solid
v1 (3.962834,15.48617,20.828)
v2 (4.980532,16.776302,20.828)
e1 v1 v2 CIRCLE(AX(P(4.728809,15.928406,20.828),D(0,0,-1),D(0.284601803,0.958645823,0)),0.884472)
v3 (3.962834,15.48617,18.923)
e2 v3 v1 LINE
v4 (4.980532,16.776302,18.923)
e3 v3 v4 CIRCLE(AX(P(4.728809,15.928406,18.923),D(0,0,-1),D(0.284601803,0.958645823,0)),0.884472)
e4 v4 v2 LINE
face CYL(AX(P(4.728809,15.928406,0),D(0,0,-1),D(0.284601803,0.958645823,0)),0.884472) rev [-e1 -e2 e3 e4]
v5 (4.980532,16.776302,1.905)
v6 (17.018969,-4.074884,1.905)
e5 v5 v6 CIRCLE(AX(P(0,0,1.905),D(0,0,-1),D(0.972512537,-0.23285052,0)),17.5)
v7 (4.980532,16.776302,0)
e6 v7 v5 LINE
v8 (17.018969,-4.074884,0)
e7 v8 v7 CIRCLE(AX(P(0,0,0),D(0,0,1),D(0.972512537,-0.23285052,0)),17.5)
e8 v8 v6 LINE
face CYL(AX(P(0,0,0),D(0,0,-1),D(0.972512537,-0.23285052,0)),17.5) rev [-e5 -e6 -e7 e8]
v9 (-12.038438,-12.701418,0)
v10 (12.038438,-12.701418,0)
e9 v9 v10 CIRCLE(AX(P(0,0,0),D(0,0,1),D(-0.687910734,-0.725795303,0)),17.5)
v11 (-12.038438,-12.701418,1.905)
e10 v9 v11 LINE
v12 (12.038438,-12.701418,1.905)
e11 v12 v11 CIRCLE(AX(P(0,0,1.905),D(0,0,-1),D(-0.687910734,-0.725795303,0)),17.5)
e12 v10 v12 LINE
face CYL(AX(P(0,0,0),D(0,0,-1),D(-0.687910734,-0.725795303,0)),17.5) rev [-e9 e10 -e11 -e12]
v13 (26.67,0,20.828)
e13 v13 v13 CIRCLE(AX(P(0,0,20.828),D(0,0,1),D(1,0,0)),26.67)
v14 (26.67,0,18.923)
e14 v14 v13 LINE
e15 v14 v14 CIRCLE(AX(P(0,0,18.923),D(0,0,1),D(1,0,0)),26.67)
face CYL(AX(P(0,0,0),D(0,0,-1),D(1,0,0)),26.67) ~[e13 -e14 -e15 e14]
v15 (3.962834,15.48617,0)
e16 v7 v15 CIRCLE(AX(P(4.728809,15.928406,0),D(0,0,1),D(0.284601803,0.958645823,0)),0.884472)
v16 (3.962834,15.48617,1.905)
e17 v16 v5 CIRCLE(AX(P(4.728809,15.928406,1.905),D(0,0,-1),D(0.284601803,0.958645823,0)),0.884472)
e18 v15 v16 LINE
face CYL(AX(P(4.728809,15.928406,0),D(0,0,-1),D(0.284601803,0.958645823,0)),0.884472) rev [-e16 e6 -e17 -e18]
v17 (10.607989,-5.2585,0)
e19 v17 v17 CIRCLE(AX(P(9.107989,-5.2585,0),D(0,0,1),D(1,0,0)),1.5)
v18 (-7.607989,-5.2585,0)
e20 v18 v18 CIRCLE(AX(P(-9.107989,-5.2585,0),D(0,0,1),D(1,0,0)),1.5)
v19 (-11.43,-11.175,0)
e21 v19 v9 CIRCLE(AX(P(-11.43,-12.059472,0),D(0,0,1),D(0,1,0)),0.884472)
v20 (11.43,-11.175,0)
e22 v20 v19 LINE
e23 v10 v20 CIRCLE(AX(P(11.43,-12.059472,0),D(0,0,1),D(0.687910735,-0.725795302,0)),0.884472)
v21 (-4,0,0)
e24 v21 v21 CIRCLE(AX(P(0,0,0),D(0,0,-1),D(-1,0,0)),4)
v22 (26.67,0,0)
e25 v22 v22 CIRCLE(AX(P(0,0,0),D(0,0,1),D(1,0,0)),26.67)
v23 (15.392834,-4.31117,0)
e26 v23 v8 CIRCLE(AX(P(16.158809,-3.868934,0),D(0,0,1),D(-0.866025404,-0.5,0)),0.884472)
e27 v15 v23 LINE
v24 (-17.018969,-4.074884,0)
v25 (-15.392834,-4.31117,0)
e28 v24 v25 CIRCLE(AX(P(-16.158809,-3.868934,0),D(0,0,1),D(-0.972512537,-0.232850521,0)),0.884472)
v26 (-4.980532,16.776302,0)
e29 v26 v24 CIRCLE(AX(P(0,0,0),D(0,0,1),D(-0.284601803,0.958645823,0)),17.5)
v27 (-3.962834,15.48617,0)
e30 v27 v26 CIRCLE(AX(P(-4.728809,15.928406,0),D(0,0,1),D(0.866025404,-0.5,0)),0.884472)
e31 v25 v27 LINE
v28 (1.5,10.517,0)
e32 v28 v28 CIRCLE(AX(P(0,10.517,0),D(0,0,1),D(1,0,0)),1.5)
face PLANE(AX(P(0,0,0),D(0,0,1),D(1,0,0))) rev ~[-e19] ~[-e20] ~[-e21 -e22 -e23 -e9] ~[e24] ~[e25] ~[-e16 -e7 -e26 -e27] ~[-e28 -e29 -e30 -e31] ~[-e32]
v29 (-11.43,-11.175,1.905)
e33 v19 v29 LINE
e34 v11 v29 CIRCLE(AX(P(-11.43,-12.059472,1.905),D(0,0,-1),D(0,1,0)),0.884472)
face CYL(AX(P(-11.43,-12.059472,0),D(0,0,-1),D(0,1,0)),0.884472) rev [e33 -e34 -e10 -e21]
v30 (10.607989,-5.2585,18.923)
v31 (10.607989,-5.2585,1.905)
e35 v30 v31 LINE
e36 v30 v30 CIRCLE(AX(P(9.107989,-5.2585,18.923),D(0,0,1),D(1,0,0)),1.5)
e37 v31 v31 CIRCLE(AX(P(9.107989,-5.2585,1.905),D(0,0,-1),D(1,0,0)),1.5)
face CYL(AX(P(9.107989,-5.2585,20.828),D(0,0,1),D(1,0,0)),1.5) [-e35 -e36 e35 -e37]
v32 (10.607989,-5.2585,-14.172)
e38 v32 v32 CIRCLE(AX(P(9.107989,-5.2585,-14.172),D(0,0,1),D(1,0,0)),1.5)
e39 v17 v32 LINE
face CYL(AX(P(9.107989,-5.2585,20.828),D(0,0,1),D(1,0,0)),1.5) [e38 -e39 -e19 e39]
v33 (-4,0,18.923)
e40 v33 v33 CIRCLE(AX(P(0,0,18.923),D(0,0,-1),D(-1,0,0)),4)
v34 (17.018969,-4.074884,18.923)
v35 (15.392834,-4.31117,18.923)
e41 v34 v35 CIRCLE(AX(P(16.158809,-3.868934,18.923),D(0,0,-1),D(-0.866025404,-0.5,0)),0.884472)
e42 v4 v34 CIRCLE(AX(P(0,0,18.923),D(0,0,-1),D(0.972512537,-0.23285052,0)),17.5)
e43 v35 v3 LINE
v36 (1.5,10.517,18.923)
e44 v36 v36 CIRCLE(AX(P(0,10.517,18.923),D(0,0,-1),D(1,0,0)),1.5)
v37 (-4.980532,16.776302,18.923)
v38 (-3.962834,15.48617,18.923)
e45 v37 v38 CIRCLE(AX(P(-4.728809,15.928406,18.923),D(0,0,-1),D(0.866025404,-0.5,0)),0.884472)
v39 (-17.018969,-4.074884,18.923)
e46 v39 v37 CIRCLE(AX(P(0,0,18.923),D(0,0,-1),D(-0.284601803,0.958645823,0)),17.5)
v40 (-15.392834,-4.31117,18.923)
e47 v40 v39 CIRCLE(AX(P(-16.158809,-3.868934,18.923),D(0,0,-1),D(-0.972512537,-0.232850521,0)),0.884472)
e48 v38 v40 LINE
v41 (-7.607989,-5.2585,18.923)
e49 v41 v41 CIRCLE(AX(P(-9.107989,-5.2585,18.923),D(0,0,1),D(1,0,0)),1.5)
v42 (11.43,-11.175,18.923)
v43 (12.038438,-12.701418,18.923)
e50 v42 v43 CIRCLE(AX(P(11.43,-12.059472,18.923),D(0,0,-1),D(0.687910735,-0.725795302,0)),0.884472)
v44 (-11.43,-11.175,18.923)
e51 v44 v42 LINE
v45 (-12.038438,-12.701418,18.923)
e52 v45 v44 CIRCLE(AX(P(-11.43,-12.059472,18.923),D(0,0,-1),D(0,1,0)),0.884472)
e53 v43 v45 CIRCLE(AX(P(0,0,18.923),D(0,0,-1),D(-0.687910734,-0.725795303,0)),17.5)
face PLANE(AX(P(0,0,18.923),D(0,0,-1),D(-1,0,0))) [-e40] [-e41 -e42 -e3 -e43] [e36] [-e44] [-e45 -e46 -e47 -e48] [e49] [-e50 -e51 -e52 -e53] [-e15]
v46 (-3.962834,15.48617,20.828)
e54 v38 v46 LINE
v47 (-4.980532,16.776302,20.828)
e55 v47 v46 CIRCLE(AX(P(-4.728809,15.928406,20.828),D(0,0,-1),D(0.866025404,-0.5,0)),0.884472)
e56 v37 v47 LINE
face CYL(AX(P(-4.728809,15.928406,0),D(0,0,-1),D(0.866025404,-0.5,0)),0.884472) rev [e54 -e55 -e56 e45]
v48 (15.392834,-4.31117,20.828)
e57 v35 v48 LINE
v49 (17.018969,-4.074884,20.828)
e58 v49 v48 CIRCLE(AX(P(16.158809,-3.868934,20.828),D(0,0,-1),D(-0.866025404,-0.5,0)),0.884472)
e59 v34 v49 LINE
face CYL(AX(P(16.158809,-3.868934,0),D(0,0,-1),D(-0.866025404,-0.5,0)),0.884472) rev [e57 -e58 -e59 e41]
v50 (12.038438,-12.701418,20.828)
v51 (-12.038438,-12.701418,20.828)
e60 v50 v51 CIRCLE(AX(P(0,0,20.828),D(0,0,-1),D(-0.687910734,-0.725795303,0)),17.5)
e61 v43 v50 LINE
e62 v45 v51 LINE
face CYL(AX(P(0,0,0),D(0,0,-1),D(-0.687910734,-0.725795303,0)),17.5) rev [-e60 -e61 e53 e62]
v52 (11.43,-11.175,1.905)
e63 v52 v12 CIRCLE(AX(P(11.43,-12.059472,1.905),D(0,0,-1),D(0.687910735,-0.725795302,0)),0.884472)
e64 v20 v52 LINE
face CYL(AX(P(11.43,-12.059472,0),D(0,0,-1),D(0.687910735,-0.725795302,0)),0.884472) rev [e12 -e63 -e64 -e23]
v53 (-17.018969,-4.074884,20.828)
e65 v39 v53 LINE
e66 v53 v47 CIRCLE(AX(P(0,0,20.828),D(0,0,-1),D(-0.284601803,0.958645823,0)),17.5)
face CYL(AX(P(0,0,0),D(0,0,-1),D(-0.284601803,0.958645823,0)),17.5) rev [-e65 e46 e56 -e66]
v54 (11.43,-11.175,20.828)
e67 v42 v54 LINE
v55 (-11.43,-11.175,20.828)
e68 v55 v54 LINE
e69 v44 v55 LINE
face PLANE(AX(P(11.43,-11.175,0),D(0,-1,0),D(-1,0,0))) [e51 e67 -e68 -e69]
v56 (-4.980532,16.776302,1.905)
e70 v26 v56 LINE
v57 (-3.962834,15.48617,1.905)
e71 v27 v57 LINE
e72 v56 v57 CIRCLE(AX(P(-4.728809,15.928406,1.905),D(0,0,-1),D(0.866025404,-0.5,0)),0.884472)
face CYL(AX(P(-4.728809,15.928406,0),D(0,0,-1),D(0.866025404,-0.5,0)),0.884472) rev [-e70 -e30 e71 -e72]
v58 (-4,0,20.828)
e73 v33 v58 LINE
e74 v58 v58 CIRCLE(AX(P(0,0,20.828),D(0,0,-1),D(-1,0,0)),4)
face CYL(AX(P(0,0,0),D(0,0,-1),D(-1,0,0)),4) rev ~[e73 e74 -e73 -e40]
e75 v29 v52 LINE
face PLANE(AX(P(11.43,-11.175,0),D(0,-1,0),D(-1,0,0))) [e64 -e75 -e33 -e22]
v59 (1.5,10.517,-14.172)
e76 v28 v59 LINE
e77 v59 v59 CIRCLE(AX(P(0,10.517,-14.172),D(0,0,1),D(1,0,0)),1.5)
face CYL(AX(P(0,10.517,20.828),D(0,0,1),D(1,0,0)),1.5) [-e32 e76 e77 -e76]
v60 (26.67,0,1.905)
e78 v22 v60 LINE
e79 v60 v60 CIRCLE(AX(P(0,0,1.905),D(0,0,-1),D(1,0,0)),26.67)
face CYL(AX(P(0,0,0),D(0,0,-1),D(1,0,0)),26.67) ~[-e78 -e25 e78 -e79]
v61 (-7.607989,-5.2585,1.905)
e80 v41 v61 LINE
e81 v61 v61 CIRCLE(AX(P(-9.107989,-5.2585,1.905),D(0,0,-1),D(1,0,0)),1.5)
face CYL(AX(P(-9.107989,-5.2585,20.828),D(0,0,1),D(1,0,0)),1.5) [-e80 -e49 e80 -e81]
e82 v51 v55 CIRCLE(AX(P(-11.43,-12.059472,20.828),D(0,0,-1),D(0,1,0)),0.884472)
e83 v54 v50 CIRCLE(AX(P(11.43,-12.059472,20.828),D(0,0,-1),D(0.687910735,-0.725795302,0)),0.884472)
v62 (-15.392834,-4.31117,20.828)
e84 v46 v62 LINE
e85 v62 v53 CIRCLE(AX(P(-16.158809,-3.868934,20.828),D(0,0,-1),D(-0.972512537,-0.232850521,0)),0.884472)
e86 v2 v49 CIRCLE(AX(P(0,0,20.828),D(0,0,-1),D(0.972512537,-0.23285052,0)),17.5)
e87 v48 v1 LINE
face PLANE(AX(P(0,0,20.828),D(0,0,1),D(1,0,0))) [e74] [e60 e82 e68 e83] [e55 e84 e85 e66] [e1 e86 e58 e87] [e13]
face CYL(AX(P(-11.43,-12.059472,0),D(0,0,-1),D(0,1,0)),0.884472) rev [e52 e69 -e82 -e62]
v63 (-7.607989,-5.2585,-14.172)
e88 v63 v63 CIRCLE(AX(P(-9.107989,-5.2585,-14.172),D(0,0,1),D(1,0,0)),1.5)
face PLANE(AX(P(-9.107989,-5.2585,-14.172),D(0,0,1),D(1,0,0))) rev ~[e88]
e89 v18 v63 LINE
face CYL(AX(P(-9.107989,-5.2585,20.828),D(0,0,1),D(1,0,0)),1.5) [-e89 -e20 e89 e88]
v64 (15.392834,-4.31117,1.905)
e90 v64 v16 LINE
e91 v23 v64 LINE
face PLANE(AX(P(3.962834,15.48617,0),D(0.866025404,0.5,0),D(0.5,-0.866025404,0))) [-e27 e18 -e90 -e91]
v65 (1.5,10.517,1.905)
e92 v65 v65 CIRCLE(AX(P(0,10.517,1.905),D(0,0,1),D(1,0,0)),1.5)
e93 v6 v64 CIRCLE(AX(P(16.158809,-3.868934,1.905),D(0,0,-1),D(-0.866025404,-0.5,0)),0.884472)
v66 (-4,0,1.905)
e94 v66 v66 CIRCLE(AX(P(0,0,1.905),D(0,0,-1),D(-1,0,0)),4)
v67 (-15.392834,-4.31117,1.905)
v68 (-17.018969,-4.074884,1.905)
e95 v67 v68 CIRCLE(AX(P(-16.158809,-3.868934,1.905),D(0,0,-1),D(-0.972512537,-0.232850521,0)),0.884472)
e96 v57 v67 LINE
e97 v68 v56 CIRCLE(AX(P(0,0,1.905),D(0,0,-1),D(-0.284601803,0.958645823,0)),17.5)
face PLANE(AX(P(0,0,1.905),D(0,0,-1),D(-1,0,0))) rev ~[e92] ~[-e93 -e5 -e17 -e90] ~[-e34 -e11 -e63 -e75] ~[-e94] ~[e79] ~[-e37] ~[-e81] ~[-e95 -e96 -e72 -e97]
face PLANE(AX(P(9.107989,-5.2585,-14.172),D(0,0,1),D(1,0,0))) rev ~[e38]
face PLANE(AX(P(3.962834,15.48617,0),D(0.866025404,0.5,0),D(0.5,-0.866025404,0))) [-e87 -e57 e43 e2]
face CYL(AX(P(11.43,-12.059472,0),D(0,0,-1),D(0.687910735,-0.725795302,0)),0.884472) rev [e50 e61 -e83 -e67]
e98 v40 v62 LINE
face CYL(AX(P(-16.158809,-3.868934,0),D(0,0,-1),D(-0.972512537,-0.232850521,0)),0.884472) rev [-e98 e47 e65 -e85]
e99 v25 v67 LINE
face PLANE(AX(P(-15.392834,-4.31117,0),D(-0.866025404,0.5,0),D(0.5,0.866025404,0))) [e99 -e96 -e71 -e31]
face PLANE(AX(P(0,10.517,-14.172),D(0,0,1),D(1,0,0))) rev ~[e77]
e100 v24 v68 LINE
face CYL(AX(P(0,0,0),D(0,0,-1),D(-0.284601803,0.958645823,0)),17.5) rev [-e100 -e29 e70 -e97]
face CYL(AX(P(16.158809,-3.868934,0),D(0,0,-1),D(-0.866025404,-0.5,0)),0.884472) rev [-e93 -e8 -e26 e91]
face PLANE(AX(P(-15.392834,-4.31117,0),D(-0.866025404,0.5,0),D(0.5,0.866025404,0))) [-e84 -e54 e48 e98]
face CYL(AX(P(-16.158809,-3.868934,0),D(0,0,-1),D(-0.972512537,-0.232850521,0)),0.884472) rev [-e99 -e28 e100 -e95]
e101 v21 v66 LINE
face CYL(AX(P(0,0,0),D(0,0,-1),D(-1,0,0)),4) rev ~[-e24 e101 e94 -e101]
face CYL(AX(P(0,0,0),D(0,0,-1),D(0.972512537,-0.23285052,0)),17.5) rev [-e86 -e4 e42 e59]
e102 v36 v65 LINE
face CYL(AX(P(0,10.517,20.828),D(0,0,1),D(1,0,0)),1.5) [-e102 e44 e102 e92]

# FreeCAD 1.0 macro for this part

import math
import FreeCAD as App
import Part
import Sketcher

V = App.Vector
Q = App.Units.Quantity

doc = App.newDocument("Part")
params = doc.addObject("Spreadsheet::Sheet", "Params")
for row, (alias, value) in enumerate([
    ("sketch1_diameter", "2.1 in"),
    ("pad1_length", "0.82 in"),
    ("sketch2_width", "0.9 in"),
    ("sketch2_length", "0.9 in"),
    ("sketch3_diameter", "2.1 in"),
    ("pocket2_length", "0.67 in"),
    ("pad2_length", "35 mm"),
], start=1):
    params.set(f"A{row}", alias)
    params.set(f"B{row}", "=" + value)
    params.setAlias(f"B{row}", alias)

body = doc.addObject("PartDesign::Body", "Body")
body.AllowCompound = True

# Sketch on XY plane
sketch1 = body.newObject("Sketcher::SketchObject", "Sketch")
sketch1.AttachmentSupport = (doc.getObject("XY_Plane"), [""])
sketch1.MapMode = "FlatFace"
sketch1.addGeometry(Part.Circle(V(0, 0, 0), V(0, 0, 1), 27), False)
sketch1.addConstraint([
    Sketcher.Constraint("Coincident", 0, 3, -1, 1),
    Sketcher.Constraint("Diameter", 0, Q("2.1 in")),
])
sketch1.setExpression("Constraints[1]", "Params.sketch1_diameter")
pad1 = body.newObject("PartDesign::Pad", "Pad")
pad1.Profile = sketch1
pad1.setExpression("Length", "Params.pad1_length")

# Sketch on XY plane
sketch2 = body.newObject("Sketcher::SketchObject", "Sketch001")
sketch2.AttachmentSupport = (doc.getObject("XY_Plane"), [""])
sketch2.MapMode = "FlatFace"
sketch2.addGeometry([
    Part.Circle(V(0, 10.5, 0), V(0, 0, 1), 1.5),  # 0
    Part.Circle(V(-9.1, -5.3, 0), V(0, 0, 1), 1.5),  # 1
    Part.Circle(V(9.1, -5.3, 0), V(0, 0, 1), 1.5),  # 2
    Part.Circle(V(0, 0, 0), V(0, 0, 1), 4),  # 3
    Part.LineSegment(V(15.4, -4.3, 0), V(4, 15.5, 0)),  # 4
    Part.ArcOfCircle(Part.Circle(V(4.7, 15.9, 0), V(0, 0, 1), 0.9), math.radians(73), math.radians(210)),  # 5
    Part.ArcOfCircle(Part.Circle(V(0, 0, 0), V(0, 0, 1), 17.5), math.radians(-13), math.radians(73)),  # 6
    Part.ArcOfCircle(Part.Circle(V(16.2, -3.9, 0), V(0, 0, 1), 0.9), math.radians(-150), math.radians(-13)),  # 7
    Part.LineSegment(V(-4, 15.5, 0), V(-15.4, -4.3, 0)),  # 8
    Part.ArcOfCircle(Part.Circle(V(-16.2, -3.9, 0), V(0, 0, 1), 0.9), math.radians(-167), math.radians(-30)),  # 9
    Part.ArcOfCircle(Part.Circle(V(0, 0, 0), V(0, 0, 1), 17.5), math.radians(107), math.radians(193)),  # 10
    Part.ArcOfCircle(Part.Circle(V(-4.7, 15.9, 0), V(0, 0, 1), 0.9), math.radians(-30), math.radians(107)),  # 11
    Part.LineSegment(V(-11.4, -11.2, 0), V(11.4, -11.2, 0)),  # 12
    Part.ArcOfCircle(Part.Circle(V(11.4, -12.1, 0), V(0, 0, 1), 0.9), math.radians(-47), math.radians(90)),  # 13
    Part.ArcOfCircle(Part.Circle(V(0, 0, 0), V(0, 0, 1), 17.5), math.radians(-133), math.radians(-47)),  # 14
    Part.ArcOfCircle(Part.Circle(V(-11.4, -12.1, 0), V(0, 0, 1), 0.9), math.radians(90), math.radians(227)),  # 15
], False)
sketch2.addConstraint([
    Sketcher.Constraint("Tangent", 4, 2, 5, 2),
    Sketcher.Constraint("Tangent", 5, 1, 6, 2),
    Sketcher.Constraint("Tangent", 6, 1, 7, 2),
    Sketcher.Constraint("Tangent", 7, 1, 4, 1),
    Sketcher.Constraint("Tangent", 8, 2, 9, 2),
    Sketcher.Constraint("Tangent", 9, 1, 10, 2),
    Sketcher.Constraint("Tangent", 10, 1, 11, 2),
    Sketcher.Constraint("Tangent", 11, 1, 8, 1),
    Sketcher.Constraint("Tangent", 12, 2, 13, 2),
    Sketcher.Constraint("Tangent", 13, 1, 14, 2),
    Sketcher.Constraint("Tangent", 14, 1, 15, 2),
    Sketcher.Constraint("Tangent", 15, 1, 12, 1),
    Sketcher.Constraint("Horizontal", 12),
    Sketcher.Constraint("Coincident", 3, 3, -1, 1),
    Sketcher.Constraint("Coincident", 6, 3, -1, 1),
    Sketcher.Constraint("Coincident", 10, 3, -1, 1),
    Sketcher.Constraint("Coincident", 14, 3, -1, 1),
    Sketcher.Constraint("Equal", 0, 1),
    Sketcher.Constraint("Equal", 1, 2),
    Sketcher.Constraint("Equal", 5, 7),
    Sketcher.Constraint("Equal", 7, 9),
    Sketcher.Constraint("Equal", 6, 10),
    Sketcher.Constraint("Equal", 9, 11),
    Sketcher.Constraint("Equal", 11, 13),
    Sketcher.Constraint("Equal", 10, 14),
    Sketcher.Constraint("Equal", 13, 15),
    Sketcher.Constraint("Symmetric", 1, 3, 2, 3, -2),
    Sketcher.Constraint("Symmetric", 7, 1, 8, 2, -2),
    Sketcher.Constraint("PointOnObject", 0, 3, -2),
    Sketcher.Constraint("DistanceX", 12, 1, 12, 2, Q("0.9 in")),
    Sketcher.Constraint("Angle", 4, Q("120 deg")),
    Sketcher.Constraint("Distance", 4, Q("0.9 in")),
    Sketcher.Constraint("Diameter", 0, Q("3 mm")),
    Sketcher.Constraint("Diameter", 3, Q("8 mm")),
    Sketcher.Constraint("Radius", 6, Q("17.5 mm")),
    Sketcher.Constraint("Radius", 5, Q("0.884472 mm")),
    Sketcher.Constraint("DistanceY", -1, 1, 0, 3, Q("10.517 mm")),
    Sketcher.Constraint("DistanceY", 1, 3, -1, 1, Q("5.2585 mm")),
    Sketcher.Constraint("DistanceX", 1, 3, 5, 3, Q("13.836798 mm")),
])
sketch2.setExpression("Constraints[29]", "Params.sketch2_width")
sketch2.setExpression("Constraints[31]", "Params.sketch2_length")
pocket1 = body.newObject("PartDesign::Pocket", "Pocket")
pocket1.Profile = sketch2
pocket1.Type = "ThroughAll"
pocket1.Reversed = True

# Sketch on XY plane
sketch3 = body.newObject("Sketcher::SketchObject", "Sketch002")
sketch3.AttachmentSupport = (doc.getObject("XY_Plane"), [""])
sketch3.MapMode = "FlatFace"
sketch3.AttachmentOffset = App.Placement(V(0, 0, 0.41 * 25.4), App.Rotation())
sketch3.addGeometry(Part.Circle(V(0, 0, 0), V(0, 0, 1), 27), False)
sketch3.addConstraint([
    Sketcher.Constraint("Coincident", 0, 3, -1, 1),
    Sketcher.Constraint("Diameter", 0, Q("2.1 in")),
])
sketch3.setExpression("Constraints[1]", "Params.sketch3_diameter")
pocket2 = body.newObject("PartDesign::Pocket", "Pocket001")
pocket2.Profile = sketch3
pocket2.setExpression("Length", "Params.pocket2_length")
pocket2.Midplane = True

# Sketch on XY plane
sketch4 = body.newObject("Sketcher::SketchObject", "Sketch003")
sketch4.AttachmentSupport = (doc.getObject("XY_Plane"), [""])
sketch4.MapMode = "FlatFace"
sketch4.AttachmentOffset = App.Placement(V(0, 0, 0.82 * 25.4), App.Rotation())
sketch4.addGeometry([
    Part.Circle(V(0, 10.5, 0), V(0, 0, 1), 1.5),
    Part.Circle(V(9.1, -5.3, 0), V(0, 0, 1), 1.5),
    Part.Circle(V(-9.1, -5.3, 0), V(0, 0, 1), 1.5),
], False)
sketch4.addConstraint([
    Sketcher.Constraint("Equal", 0, 1),
    Sketcher.Constraint("Equal", 1, 2),
    Sketcher.Constraint("Symmetric", 1, 3, 2, 3, -2),
    Sketcher.Constraint("PointOnObject", 0, 3, -2),
    Sketcher.Constraint("Diameter", 0, Q("3 mm")),
    Sketcher.Constraint("DistanceY", -1, 1, 0, 3, Q("10.517 mm")),
    Sketcher.Constraint("DistanceY", 1, 3, -1, 1, Q("5.2585 mm")),
    Sketcher.Constraint("DistanceX", -1, 1, 1, 3, Q("9.107989 mm")),
])
pad2 = body.newObject("PartDesign::Pad", "Pad001")
pad2.Profile = sketch4
pad2.setExpression("Length", "Params.pad2_length")
pad2.Reversed = True

doc.recompute()
